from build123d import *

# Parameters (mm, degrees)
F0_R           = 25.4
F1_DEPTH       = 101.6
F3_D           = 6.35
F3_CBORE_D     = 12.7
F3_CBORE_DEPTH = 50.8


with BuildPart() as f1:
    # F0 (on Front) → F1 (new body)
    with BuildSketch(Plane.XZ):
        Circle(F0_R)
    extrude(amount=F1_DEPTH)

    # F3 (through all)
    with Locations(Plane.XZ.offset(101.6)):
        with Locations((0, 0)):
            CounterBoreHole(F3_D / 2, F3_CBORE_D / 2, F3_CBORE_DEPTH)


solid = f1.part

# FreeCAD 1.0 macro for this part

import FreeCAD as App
import Part
import Sketcher
Q = App.Units.Quantity

doc = App.newDocument("Part")
body = doc.addObject("PartDesign::Body", "Body")

sketch1 = body.newObject("Sketcher::SketchObject", "Sketch")
sketch1.AttachmentSupport = (doc.getObject("XZ_Plane"), [""])
sketch1.MapMode = "FlatFace"
sketch1.addGeometry(Part.Circle(App.Vector(0, 0, 0), App.Vector(0, 0, 1), 25.4), False)
sketch1.addConstraint(Sketcher.Constraint("Coincident", 0, 3, -1, 1))
sketch1.addConstraint(Sketcher.Constraint("Diameter", 0, Q("2 in")))
pad1 = body.newObject("PartDesign::Pad", "Pad")
pad1.Profile = sketch1
pad1.Length = Q("4 in")

sketch2 = body.newObject("Sketcher::SketchObject", "Sketch001")
sketch2.AttachmentSupport = (doc.getObject("XZ_Plane"), [""])
sketch2.MapMode = "FlatFace"
sketch2.AttachmentOffset = App.Placement(App.Vector(0, 0, 4 * 25.4), App.Rotation())
sketch2.addGeometry(Part.Circle(App.Vector(0, 0, 0), App.Vector(0, 0, 1), 3.175), False)
sketch2.addConstraint(Sketcher.Constraint("Coincident", 0, 3, -1, 1))
sketch2.addConstraint(Sketcher.Constraint("Diameter", 0, Q("0.25 in")))
doc.recompute()
hole = body.newObject("PartDesign::Hole", "Hole")
hole.Profile = sketch2
hole.ThreadType = "None"
hole.Diameter = Q("0.25 in")
hole.DepthType = "ThroughAll"
hole.HoleCutType = "Counterbore"
hole.HoleCutDiameter = Q("0.5 in")
hole.HoleCutDepth = Q("2 in")

doc.recompute()
